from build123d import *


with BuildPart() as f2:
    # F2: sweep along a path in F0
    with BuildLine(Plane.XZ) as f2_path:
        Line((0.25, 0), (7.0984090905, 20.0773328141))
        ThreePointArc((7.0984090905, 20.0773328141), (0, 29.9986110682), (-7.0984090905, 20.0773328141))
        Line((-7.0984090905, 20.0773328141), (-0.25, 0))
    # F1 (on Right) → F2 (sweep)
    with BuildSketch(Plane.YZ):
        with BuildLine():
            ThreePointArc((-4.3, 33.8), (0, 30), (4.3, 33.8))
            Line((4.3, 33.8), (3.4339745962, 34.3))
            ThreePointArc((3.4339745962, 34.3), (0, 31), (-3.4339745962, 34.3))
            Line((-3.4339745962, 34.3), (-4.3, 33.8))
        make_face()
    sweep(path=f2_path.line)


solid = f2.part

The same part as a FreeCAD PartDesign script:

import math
import FreeCAD as App
import Part
import Sketcher
from FreeCAD import Vector
Q = App.Units.Quantity

doc = App.newDocument("Part")
body = doc.addObject("PartDesign::Body", "Body")

# Sketch on YZ plane
sketch1 = body.newObject("Sketcher::SketchObject", "Sketch")
sketch1.AttachmentSupport = (doc.getObject("YZ_Plane"), [""])
sketch1.MapMode = "FlatFace"
sketch1.addGeometry([
    Part.ArcOfCircle(Part.Circle(Vector(0, 34.3, 0), Vector(0, 0, 1), 4.3), math.radians(-173), math.radians(-7)),
    Part.LineSegment(Vector(4.3, 33.8, 0), Vector(3.4, 34.3, 0)),
    Part.ArcOfCircle(Part.Circle(Vector(0, 34.4, 0), Vector(0, 0, 1), 3.4), math.radians(-178), math.radians(-2)),
    Part.LineSegment(Vector(-3.4, 34.3, 0), Vector(-4.3, 33.8, 0)),
], False)
sketch1.addConstraint([
    Sketcher.Constraint("Coincident", 0, 2, 1, 1),
    Sketcher.Constraint("Coincident", 1, 2, 2, 2),
    Sketcher.Constraint("Coincident", 2, 1, 3, 1),
    Sketcher.Constraint("Coincident", 3, 2, 0, 1),
    Sketcher.Constraint("Symmetric", 1, 2, 2, 1, -2),
    Sketcher.Constraint("Symmetric", 0, 2, 3, 2, -2),
    Sketcher.Constraint("Angle", 1, Q("150 deg")),
    Sketcher.Constraint("Distance", 1, 1.0),
    Sketcher.Constraint("DistanceX", -1, 1, 0, 2, 4.3),
    Sketcher.Constraint("DistanceY", -1, 1, 0, 2, 33.8),
    Sketcher.Constraint("Radius", 0, 4.332895),
    Sketcher.Constraint("Radius", 2, 3.436694),
])

# Sketch on XZ plane
sketch2 = body.newObject("Sketcher::SketchObject", "Sketch001")
sketch2.AttachmentSupport = (doc.getObject("XZ_Plane"), [""])
sketch2.MapMode = "FlatFace"
sketch2.addGeometry([
    Part.LineSegment(Vector(0, 0, 0), Vector(7, 20, 0)),
    Part.ArcOfCircle(Part.Circle(Vector(0, 22, 0), Vector(0, 0, 1), 8), math.radians(-19), math.radians(199)),
    Part.LineSegment(Vector(-7, 20, 0), Vector(0, 0, 0)),
], False)
sketch2.addConstraint([
    Sketcher.Constraint("Tangent", 0, 2, 1, 1),
    Sketcher.Constraint("Tangent", 1, 2, 2, 1),
    Sketcher.Constraint("Symmetric", 0, 1, 2, 2, -1, 1),
    Sketcher.Constraint("Symmetric", 0, 2, 1, 2, -2),
    Sketcher.Constraint("Radius", 1, 7.5),
    Sketcher.Constraint("DistanceX", 2, 2, 0, 1, 0.5),
    Sketcher.Constraint("DistanceY", -1, 1, 1, 3, 22.498611),
])
doc.recompute()

additivepipe = body.newObject("PartDesign::AdditivePipe", "AdditivePipe")
additivepipe.Profile = sketch1
additivepipe.Spine = (sketch2, ["Edge1", "Edge2", "Edge3"])

doc.recompute()
